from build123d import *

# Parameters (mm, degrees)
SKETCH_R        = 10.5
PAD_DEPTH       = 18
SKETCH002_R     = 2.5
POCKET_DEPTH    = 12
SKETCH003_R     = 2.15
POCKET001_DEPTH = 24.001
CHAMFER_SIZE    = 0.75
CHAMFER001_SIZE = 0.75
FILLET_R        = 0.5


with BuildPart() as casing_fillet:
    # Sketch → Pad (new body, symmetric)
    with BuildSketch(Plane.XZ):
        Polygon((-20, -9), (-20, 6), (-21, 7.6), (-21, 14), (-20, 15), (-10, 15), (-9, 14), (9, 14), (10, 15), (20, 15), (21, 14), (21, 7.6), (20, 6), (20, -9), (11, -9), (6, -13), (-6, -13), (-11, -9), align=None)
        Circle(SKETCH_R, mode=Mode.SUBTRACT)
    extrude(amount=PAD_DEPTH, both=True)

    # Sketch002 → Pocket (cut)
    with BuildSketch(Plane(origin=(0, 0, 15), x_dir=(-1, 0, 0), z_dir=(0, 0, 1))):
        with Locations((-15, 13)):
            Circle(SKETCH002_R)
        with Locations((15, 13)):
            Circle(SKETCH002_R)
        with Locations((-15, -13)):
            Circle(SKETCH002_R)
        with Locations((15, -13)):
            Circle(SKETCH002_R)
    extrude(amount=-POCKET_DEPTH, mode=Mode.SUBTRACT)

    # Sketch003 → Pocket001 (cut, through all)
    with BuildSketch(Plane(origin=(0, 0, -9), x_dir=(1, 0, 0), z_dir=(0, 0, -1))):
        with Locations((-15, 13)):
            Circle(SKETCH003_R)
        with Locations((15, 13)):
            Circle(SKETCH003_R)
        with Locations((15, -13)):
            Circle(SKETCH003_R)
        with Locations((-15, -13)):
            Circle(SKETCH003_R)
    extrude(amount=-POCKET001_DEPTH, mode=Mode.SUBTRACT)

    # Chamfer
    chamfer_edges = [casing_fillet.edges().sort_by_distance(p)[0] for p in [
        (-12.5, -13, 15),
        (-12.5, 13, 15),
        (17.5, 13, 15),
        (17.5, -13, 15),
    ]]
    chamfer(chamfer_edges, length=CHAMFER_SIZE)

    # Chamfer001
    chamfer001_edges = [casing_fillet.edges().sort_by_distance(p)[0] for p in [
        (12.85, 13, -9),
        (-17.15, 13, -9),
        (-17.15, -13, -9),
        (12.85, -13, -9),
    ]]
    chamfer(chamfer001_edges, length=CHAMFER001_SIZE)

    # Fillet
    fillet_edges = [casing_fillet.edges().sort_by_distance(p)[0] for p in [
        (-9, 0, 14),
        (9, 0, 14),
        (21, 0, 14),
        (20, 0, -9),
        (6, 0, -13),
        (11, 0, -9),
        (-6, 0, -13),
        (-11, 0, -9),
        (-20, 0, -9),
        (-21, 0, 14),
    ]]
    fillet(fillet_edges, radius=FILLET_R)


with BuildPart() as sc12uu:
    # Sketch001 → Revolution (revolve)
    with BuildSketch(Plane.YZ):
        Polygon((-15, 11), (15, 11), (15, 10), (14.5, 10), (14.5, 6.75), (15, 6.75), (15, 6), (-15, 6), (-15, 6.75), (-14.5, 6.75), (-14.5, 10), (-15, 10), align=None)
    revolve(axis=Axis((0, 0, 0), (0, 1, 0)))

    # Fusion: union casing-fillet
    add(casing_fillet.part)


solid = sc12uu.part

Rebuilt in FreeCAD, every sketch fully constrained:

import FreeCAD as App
import Part
import Sketcher
from FreeCAD import Vector
Q = App.Units.Quantity


def edges_at(feature, points):
    """Names of the edges that pass closest to the given points."""
    edges = feature.Shape.Edges
    near = lambda p: min(range(len(edges)), key=lambda i: edges[i].distToShape(Part.Vertex(*p))[0])
    return sorted({f"Edge{near(p) + 1}" for p in points})

doc = App.newDocument("Part")
body = doc.addObject("PartDesign::Body", "Body")

sketch1 = body.newObject("Sketcher::SketchObject", "Sketch")
sketch1.AttachmentSupport = (doc.getObject("XZ_Plane"), [""])
sketch1.MapMode = "FlatFace"
sketch1.addGeometry(Part.LineSegment(Vector(-20, 6, 0), Vector(-20, -9, 0)), False)
sketch1.addGeometry(Part.LineSegment(Vector(-20, -9, 0), Vector(-11, -9, 0)), False)
sketch1.addGeometry(Part.LineSegment(Vector(-11, -9, 0), Vector(-6, -13, 0)), False)
sketch1.addGeometry(Part.LineSegment(Vector(-6, -13, 0), Vector(6, -13, 0)), False)
sketch1.addGeometry(Part.LineSegment(Vector(6, -13, 0), Vector(11, -9, 0)), False)
sketch1.addGeometry(Part.LineSegment(Vector(11, -9, 0), Vector(20, -9, 0)), False)
sketch1.addGeometry(Part.LineSegment(Vector(20, -9, 0), Vector(20, 6, 0)), False)
sketch1.addGeometry(Part.LineSegment(Vector(20, 6, 0), Vector(21, 7.6, 0)), False)
sketch1.addGeometry(Part.LineSegment(Vector(21, 7.6, 0), Vector(21, 14, 0)), False)
sketch1.addGeometry(Part.LineSegment(Vector(21, 14, 0), Vector(20, 15, 0)), False)
sketch1.addGeometry(Part.LineSegment(Vector(20, 15, 0), Vector(10, 15, 0)), False)
sketch1.addGeometry(Part.LineSegment(Vector(10, 15, 0), Vector(9, 14, 0)), False)
sketch1.addGeometry(Part.LineSegment(Vector(9, 14, 0), Vector(-9, 14, 0)), False)
sketch1.addGeometry(Part.LineSegment(Vector(-9, 14, 0), Vector(-10, 15, 0)), False)
sketch1.addGeometry(Part.LineSegment(Vector(-10, 15, 0), Vector(-20, 15, 0)), False)
sketch1.addGeometry(Part.LineSegment(Vector(-20, 15, 0), Vector(-21, 14, 0)), False)
sketch1.addGeometry(Part.LineSegment(Vector(-21, 14, 0), Vector(-21, 7.6, 0)), False)
sketch1.addGeometry(Part.LineSegment(Vector(-21, 7.6, 0), Vector(-20, 6, 0)), False)
sketch1.addGeometry(Part.Circle(Vector(0, 0, 0), Vector(0, 0, 1), 10.5), False)
sketch1.addConstraint(Sketcher.Constraint("Coincident", 0, 2, 1, 1))
sketch1.addConstraint(Sketcher.Constraint("Coincident", 1, 2, 2, 1))
sketch1.addConstraint(Sketcher.Constraint("Coincident", 2, 2, 3, 1))
sketch1.addConstraint(Sketcher.Constraint("Coincident", 3, 2, 4, 1))
sketch1.addConstraint(Sketcher.Constraint("Coincident", 4, 2, 5, 1))
sketch1.addConstraint(Sketcher.Constraint("Coincident", 5, 2, 6, 1))
sketch1.addConstraint(Sketcher.Constraint("Coincident", 6, 2, 7, 1))
sketch1.addConstraint(Sketcher.Constraint("Coincident", 7, 2, 8, 1))
sketch1.addConstraint(Sketcher.Constraint("Coincident", 8, 2, 9, 1))
sketch1.addConstraint(Sketcher.Constraint("Coincident", 9, 2, 10, 1))
sketch1.addConstraint(Sketcher.Constraint("Coincident", 10, 2, 11, 1))
sketch1.addConstraint(Sketcher.Constraint("Coincident", 11, 2, 12, 1))
sketch1.addConstraint(Sketcher.Constraint("Coincident", 12, 2, 13, 1))
sketch1.addConstraint(Sketcher.Constraint("Coincident", 13, 2, 14, 1))
sketch1.addConstraint(Sketcher.Constraint("Coincident", 14, 2, 15, 1))
sketch1.addConstraint(Sketcher.Constraint("Coincident", 15, 2, 16, 1))
sketch1.addConstraint(Sketcher.Constraint("Coincident", 16, 2, 17, 1))
sketch1.addConstraint(Sketcher.Constraint("Coincident", 17, 2, 0, 1))
sketch1.addConstraint(Sketcher.Constraint("Vertical", 0))
sketch1.addConstraint(Sketcher.Constraint("Horizontal", 1))
sketch1.addConstraint(Sketcher.Constraint("Horizontal", 3))
sketch1.addConstraint(Sketcher.Constraint("Horizontal", 5))
sketch1.addConstraint(Sketcher.Constraint("Vertical", 6))
sketch1.addConstraint(Sketcher.Constraint("Vertical", 8))
sketch1.addConstraint(Sketcher.Constraint("Horizontal", 10))
sketch1.addConstraint(Sketcher.Constraint("Horizontal", 12))
sketch1.addConstraint(Sketcher.Constraint("Horizontal", 14))
sketch1.addConstraint(Sketcher.Constraint("Vertical", 16))
sketch1.addConstraint(Sketcher.Constraint("Coincident", 18, 3, -1, 1))
sketch1.addConstraint(Sketcher.Constraint("Symmetric", 1, 2, 4, 2, -2))
sketch1.addConstraint(Sketcher.Constraint("Symmetric", 10, 2, 13, 2, -2))
sketch1.addConstraint(Sketcher.Constraint("Symmetric", 8, 2, 15, 2, -2))
sketch1.addConstraint(Sketcher.Constraint("Symmetric", 6, 2, 17, 2, -2))
sketch1.addConstraint(Sketcher.Constraint("Perpendicular", 9, 11))
sketch1.addConstraint(Sketcher.Constraint("Perpendicular", 11, 13))
sketch1.addConstraint(Sketcher.Constraint("Perpendicular", 13, 15))
sketch1.addConstraint(Sketcher.Constraint("Horizontal", 8, 2, 11, 2))
sketch1.addConstraint(Sketcher.Constraint("Horizontal", 7, 2, 16, 2))
sketch1.addConstraint(Sketcher.Constraint("Vertical", 6, 2, 9, 2))
sketch1.addConstraint(Sketcher.Constraint("Vertical", 0, 2, 14, 2))
sketch1.addConstraint(Sketcher.Constraint("Equal", 2, 4))
sketch1.addConstraint(Sketcher.Constraint("Diameter", 18, Q("21 mm")))
sketch1.addConstraint(Sketcher.Constraint("DistanceX", 1, 1, 1, 2, Q("9 mm")))
sketch1.addConstraint(Sketcher.Constraint("DistanceX", 3, 1, 3, 2, Q("12 mm")))
sketch1.addConstraint(Sketcher.Constraint("DistanceX", 10, 2, 10, 1, Q("10 mm")))
sketch1.addConstraint(Sketcher.Constraint("DistanceX", 12, 2, 12, 1, Q("18 mm")))
sketch1.addConstraint(Sketcher.Constraint("DistanceY", 0, 2, 0, 1, Q("15 mm")))
sketch1.addConstraint(Sketcher.Constraint("DistanceY", 8, 1, 8, 2, Q("6.4 mm")))
sketch1.addConstraint(Sketcher.Constraint("DistanceX", 0, 2, -1, 1, Q("20 mm")))
sketch1.addConstraint(Sketcher.Constraint("DistanceY", 0, 2, -1, 1, Q("9 mm")))
sketch1.addConstraint(Sketcher.Constraint("DistanceY", 2, 2, -1, 1, Q("13 mm")))
sketch1.addConstraint(Sketcher.Constraint("DistanceY", -1, 1, 8, 2, Q("14 mm")))
pad1 = body.newObject("PartDesign::Pad", "Pad")
pad1.Profile = sketch1
pad1.Length = 36
pad1.Midplane = True

sketch2 = body.newObject("Sketcher::SketchObject", "Sketch001")
sketch2.AttachmentSupport = (doc.getObject("XY_Plane"), [""])
sketch2.MapMode = "FlatFace"
sketch2.AttachmentOffset = App.Placement(Vector(0, 0, 15), App.Rotation())
sketch2.addGeometry(Part.Circle(Vector(15, -13, 0), Vector(0, 0, 1), 2.5), False)
sketch2.addGeometry(Part.Circle(Vector(-15, -13, 0), Vector(0, 0, 1), 2.5), False)
sketch2.addGeometry(Part.Circle(Vector(15, 13, 0), Vector(0, 0, 1), 2.5), False)
sketch2.addGeometry(Part.Circle(Vector(-15, 13, 0), Vector(0, 0, 1), 2.5), False)
sketch2.addConstraint(Sketcher.Constraint("Equal", 0, 1))
sketch2.addConstraint(Sketcher.Constraint("Equal", 1, 2))
sketch2.addConstraint(Sketcher.Constraint("Equal", 2, 3))
sketch2.addConstraint(Sketcher.Constraint("Symmetric", 1, 3, 2, 3, -1, 1))
sketch2.addConstraint(Sketcher.Constraint("Symmetric", 0, 3, 3, 3, -1, 1))
sketch2.addConstraint(Sketcher.Constraint("Symmetric", 0, 3, 1, 3, -2))
sketch2.addConstraint(Sketcher.Constraint("Diameter", 0, Q("5 mm")))
sketch2.addConstraint(Sketcher.Constraint("DistanceX", -1, 1, 0, 3, Q("15 mm")))
sketch2.addConstraint(Sketcher.Constraint("DistanceY", 0, 3, -1, 1, Q("13 mm")))
pocket1 = body.newObject("PartDesign::Pocket", "Pocket")
pocket1.Profile = sketch2
pocket1.Length = 12

sketch3 = body.newObject("Sketcher::SketchObject", "Sketch002")
sketch3.AttachmentSupport = (doc.getObject("XY_Plane"), [""])
sketch3.MapMode = "FlatFace"
sketch3.AttachmentOffset = App.Placement(Vector(0, 0, -9), App.Rotation())
sketch3.addGeometry(Part.Circle(Vector(-15, -13, 0), Vector(0, 0, 1), 2.15), False)
sketch3.addGeometry(Part.Circle(Vector(15, -13, 0), Vector(0, 0, 1), 2.15), False)
sketch3.addGeometry(Part.Circle(Vector(15, 13, 0), Vector(0, 0, 1), 2.15), False)
sketch3.addGeometry(Part.Circle(Vector(-15, 13, 0), Vector(0, 0, 1), 2.15), False)
sketch3.addConstraint(Sketcher.Constraint("Equal", 0, 1))
sketch3.addConstraint(Sketcher.Constraint("Equal", 1, 2))
sketch3.addConstraint(Sketcher.Constraint("Equal", 2, 3))
sketch3.addConstraint(Sketcher.Constraint("Symmetric", 0, 3, 2, 3, -1, 1))
sketch3.addConstraint(Sketcher.Constraint("Symmetric", 1, 3, 3, 3, -1, 1))
sketch3.addConstraint(Sketcher.Constraint("Symmetric", 0, 3, 1, 3, -2))
sketch3.addConstraint(Sketcher.Constraint("Diameter", 0, Q("4.3 mm")))
sketch3.addConstraint(Sketcher.Constraint("DistanceX", 0, 3, -1, 1, Q("15 mm")))
sketch3.addConstraint(Sketcher.Constraint("DistanceY", 0, 3, -1, 1, Q("13 mm")))
pocket2 = body.newObject("PartDesign::Pocket", "Pocket001")
pocket2.Profile = sketch3
pocket2.Type = "ThroughAll"
pocket2.Reversed = True
doc.recompute()

chamfer = body.newObject("PartDesign::Chamfer", "Chamfer")
chamfer.Base = (pocket2, edges_at(pocket2, [
    (-12.5, -13, 15),
    (-12.5, 13, 15),
    (17.5, 13, 15),
    (17.5, -13, 15),
]))
chamfer.Size = 0.75
doc.recompute()

chamfer2 = body.newObject("PartDesign::Chamfer", "Chamfer001")
chamfer2.Base = (chamfer, edges_at(chamfer, [
    (12.85, 13, -9),
    (-17.15, 13, -9),
    (-17.15, -13, -9),
    (12.85, -13, -9),
]))
chamfer2.Size = 0.75
doc.recompute()

fillet = body.newObject("PartDesign::Fillet", "Fillet")
fillet.Base = (chamfer2, edges_at(chamfer2, [
    (-9, 0, 14),
    (9, 0, 14),
    (21, 0, 14),
    (20, 0, -9),
    (6, 0, -13),
    (11, 0, -9),
    (-6, 0, -13),
    (-11, 0, -9),
    (-20, 0, -9),
    (-21, 0, 14),
]))
fillet.Radius = 0.5
body2 = doc.addObject("PartDesign::Body", "Body001")

sketch4 = body2.newObject("Sketcher::SketchObject", "Sketch003")
sketch4.AttachmentSupport = (doc.getObject("YZ_Plane001"), [""])
sketch4.MapMode = "FlatFace"
sketch4.addGeometry(Part.LineSegment(Vector(15, 11, 0), Vector(-15, 11, 0)), False)
sketch4.addGeometry(Part.LineSegment(Vector(-15, 11, 0), Vector(-15, 10, 0)), False)
sketch4.addGeometry(Part.LineSegment(Vector(-15, 10, 0), Vector(-14.5, 10, 0)), False)
sketch4.addGeometry(Part.LineSegment(Vector(-14.5, 10, 0), Vector(-14.5, 6.75, 0)), False)
sketch4.addGeometry(Part.LineSegment(Vector(-14.5, 6.75, 0), Vector(-15, 6.75, 0)), False)
sketch4.addGeometry(Part.LineSegment(Vector(-15, 6.75, 0), Vector(-15, 6, 0)), False)
sketch4.addGeometry(Part.LineSegment(Vector(-15, 6, 0), Vector(15, 6, 0)), False)
sketch4.addGeometry(Part.LineSegment(Vector(15, 6, 0), Vector(15, 6.75, 0)), False)
sketch4.addGeometry(Part.LineSegment(Vector(15, 6.75, 0), Vector(14.5, 6.75, 0)), False)
sketch4.addGeometry(Part.LineSegment(Vector(14.5, 6.75, 0), Vector(14.5, 10, 0)), False)
sketch4.addGeometry(Part.LineSegment(Vector(14.5, 10, 0), Vector(15, 10, 0)), False)
sketch4.addGeometry(Part.LineSegment(Vector(15, 10, 0), Vector(15, 11, 0)), False)
sketch4.addConstraint(Sketcher.Constraint("Coincident", 0, 2, 1, 1))
sketch4.addConstraint(Sketcher.Constraint("Coincident", 1, 2, 2, 1))
sketch4.addConstraint(Sketcher.Constraint("Coincident", 2, 2, 3, 1))
sketch4.addConstraint(Sketcher.Constraint("Coincident", 3, 2, 4, 1))
sketch4.addConstraint(Sketcher.Constraint("Coincident", 4, 2, 5, 1))
sketch4.addConstraint(Sketcher.Constraint("Coincident", 5, 2, 6, 1))
sketch4.addConstraint(Sketcher.Constraint("Coincident", 6, 2, 7, 1))
sketch4.addConstraint(Sketcher.Constraint("Coincident", 7, 2, 8, 1))
sketch4.addConstraint(Sketcher.Constraint("Coincident", 8, 2, 9, 1))
sketch4.addConstraint(Sketcher.Constraint("Coincident", 9, 2, 10, 1))
sketch4.addConstraint(Sketcher.Constraint("Coincident", 10, 2, 11, 1))
sketch4.addConstraint(Sketcher.Constraint("Coincident", 11, 2, 0, 1))
sketch4.addConstraint(Sketcher.Constraint("Horizontal", 0))
sketch4.addConstraint(Sketcher.Constraint("Vertical", 1))
sketch4.addConstraint(Sketcher.Constraint("Horizontal", 2))
sketch4.addConstraint(Sketcher.Constraint("Vertical", 3))
sketch4.addConstraint(Sketcher.Constraint("Horizontal", 4))
sketch4.addConstraint(Sketcher.Constraint("Vertical", 5))
sketch4.addConstraint(Sketcher.Constraint("Horizontal", 6))
sketch4.addConstraint(Sketcher.Constraint("Vertical", 7))
sketch4.addConstraint(Sketcher.Constraint("Horizontal", 8))
sketch4.addConstraint(Sketcher.Constraint("Vertical", 9))
sketch4.addConstraint(Sketcher.Constraint("Horizontal", 10))
sketch4.addConstraint(Sketcher.Constraint("Vertical", 11))
sketch4.addConstraint(Sketcher.Constraint("Symmetric", 4, 2, 7, 2, -2))
sketch4.addConstraint(Sketcher.Constraint("Symmetric", 2, 2, 9, 2, -2))
sketch4.addConstraint(Sketcher.Constraint("Vertical", 1, 2, 4, 2))
sketch4.addConstraint(Sketcher.Constraint("Vertical", 7, 2, 10, 2))
sketch4.addConstraint(Sketcher.Constraint("DistanceX", 0, 2, 0, 1, Q("30 mm")))
sketch4.addConstraint(Sketcher.Constraint("DistanceY", 1, 2, 1, 1, Q("1 mm")))
sketch4.addConstraint(Sketcher.Constraint("DistanceX", 2, 1, 2, 2, Q("0.5 mm")))
sketch4.addConstraint(Sketcher.Constraint("DistanceY", -1, 1, 0, 2, Q("11 mm")))
sketch4.addConstraint(Sketcher.Constraint("DistanceY", -1, 1, 5, 2, Q("6 mm")))
sketch4.addConstraint(Sketcher.Constraint("DistanceY", 3, 2, 3, 1, Q("3.25 mm")))
revolution = body2.newObject("PartDesign::Revolution", "Revolution")
revolution.Profile = sketch4
revolution.ReferenceAxis = (sketch4, ["H_Axis"])
revolution.Angle = 360
doc.recompute()

boolean = body2.newObject("PartDesign::Boolean", "Boolean")
boolean.Type = "Fuse"
boolean.addObjects([body])

doc.recompute()
